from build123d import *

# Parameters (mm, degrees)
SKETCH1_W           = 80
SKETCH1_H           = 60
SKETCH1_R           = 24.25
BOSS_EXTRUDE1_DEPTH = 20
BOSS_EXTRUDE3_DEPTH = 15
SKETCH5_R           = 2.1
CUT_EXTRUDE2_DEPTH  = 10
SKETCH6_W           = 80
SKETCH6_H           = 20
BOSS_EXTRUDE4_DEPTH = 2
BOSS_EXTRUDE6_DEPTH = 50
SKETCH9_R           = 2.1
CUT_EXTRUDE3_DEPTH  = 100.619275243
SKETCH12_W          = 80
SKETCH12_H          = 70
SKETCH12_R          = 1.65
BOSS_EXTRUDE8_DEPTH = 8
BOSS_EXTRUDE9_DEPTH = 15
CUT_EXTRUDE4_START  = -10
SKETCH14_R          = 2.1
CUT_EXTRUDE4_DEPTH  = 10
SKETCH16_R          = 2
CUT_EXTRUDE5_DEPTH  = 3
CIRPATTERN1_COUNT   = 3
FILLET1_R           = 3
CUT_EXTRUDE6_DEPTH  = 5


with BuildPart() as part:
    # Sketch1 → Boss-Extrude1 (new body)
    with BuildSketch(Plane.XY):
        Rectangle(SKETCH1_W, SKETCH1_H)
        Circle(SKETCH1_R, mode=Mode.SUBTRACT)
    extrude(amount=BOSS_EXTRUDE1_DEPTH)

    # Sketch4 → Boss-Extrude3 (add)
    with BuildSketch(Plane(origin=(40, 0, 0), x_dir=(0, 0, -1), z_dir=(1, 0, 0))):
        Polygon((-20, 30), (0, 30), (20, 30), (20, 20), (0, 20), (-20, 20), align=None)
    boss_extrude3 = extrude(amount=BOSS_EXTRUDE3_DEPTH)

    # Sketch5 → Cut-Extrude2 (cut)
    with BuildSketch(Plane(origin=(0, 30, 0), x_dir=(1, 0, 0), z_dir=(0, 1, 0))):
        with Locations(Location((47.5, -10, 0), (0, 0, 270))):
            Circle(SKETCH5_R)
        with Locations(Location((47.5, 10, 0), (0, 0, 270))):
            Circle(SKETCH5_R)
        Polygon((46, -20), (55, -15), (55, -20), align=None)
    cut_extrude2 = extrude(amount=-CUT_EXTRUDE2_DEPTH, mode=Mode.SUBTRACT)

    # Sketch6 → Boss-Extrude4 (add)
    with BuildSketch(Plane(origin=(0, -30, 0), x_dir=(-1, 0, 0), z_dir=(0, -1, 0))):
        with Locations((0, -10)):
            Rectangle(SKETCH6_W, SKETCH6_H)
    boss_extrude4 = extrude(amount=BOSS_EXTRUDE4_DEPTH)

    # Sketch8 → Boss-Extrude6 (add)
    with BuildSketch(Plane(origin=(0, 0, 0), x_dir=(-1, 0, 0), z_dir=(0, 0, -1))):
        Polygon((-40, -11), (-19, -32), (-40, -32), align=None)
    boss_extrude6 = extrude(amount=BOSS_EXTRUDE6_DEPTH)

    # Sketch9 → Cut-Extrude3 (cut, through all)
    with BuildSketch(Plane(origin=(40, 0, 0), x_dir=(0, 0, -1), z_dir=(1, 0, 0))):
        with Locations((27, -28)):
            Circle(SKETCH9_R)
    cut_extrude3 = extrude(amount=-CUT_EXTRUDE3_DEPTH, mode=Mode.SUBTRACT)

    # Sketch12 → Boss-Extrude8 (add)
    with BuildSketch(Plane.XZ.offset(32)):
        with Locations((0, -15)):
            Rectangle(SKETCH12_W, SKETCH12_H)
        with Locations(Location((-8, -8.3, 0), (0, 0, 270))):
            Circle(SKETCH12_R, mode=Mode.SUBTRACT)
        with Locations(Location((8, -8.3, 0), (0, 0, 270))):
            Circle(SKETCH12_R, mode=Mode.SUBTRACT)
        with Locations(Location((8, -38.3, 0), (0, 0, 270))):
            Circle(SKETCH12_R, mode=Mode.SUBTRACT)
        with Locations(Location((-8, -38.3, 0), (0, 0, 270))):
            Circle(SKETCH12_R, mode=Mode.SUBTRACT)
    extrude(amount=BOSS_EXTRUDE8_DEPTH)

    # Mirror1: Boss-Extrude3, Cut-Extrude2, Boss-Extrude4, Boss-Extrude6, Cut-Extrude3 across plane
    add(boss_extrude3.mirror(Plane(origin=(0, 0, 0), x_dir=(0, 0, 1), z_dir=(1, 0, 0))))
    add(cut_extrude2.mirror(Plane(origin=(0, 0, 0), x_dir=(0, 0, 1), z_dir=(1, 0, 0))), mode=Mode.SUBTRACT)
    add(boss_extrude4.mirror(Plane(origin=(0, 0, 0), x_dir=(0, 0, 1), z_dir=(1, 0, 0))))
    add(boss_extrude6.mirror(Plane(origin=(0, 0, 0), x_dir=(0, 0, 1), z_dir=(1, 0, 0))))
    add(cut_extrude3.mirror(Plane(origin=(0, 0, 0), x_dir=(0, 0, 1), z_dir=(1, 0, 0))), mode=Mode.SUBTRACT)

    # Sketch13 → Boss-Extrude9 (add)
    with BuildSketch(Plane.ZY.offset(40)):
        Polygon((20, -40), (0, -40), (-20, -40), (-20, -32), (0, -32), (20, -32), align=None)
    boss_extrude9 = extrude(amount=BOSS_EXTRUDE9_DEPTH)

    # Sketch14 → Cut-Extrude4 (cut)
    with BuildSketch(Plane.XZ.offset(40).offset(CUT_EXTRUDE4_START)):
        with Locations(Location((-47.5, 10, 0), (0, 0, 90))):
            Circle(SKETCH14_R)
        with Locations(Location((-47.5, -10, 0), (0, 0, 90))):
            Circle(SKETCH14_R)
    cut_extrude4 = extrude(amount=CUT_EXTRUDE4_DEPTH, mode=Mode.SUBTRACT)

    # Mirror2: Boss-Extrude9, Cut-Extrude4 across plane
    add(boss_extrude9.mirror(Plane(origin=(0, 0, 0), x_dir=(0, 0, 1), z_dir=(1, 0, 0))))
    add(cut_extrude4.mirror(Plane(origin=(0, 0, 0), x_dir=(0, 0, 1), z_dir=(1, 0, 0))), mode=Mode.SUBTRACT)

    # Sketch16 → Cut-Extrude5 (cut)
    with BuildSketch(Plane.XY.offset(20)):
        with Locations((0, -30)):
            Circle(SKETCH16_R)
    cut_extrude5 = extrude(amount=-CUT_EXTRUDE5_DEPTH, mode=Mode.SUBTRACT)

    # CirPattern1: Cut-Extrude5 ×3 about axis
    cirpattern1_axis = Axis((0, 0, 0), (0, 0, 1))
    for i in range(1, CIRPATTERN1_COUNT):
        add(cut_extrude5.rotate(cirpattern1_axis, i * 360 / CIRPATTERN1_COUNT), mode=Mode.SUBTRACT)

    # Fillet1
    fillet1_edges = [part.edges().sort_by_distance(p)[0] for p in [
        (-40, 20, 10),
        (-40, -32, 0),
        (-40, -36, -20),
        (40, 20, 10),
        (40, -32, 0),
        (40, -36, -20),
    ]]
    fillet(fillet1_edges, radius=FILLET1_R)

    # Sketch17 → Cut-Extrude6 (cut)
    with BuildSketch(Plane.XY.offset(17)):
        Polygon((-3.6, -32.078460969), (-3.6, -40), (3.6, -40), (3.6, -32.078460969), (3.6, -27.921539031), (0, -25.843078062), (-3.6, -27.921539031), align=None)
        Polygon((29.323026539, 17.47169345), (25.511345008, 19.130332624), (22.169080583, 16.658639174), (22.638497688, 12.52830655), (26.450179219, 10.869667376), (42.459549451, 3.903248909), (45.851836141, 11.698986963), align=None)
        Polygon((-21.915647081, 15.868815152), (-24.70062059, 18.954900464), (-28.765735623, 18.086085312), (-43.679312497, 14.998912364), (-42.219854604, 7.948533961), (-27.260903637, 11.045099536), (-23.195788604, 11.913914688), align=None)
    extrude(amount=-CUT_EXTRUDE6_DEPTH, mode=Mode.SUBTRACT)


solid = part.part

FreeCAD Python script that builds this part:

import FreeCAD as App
import Part
import Sketcher

V = App.Vector


def edges_at(feature, points):
    """Names of the edges that pass closest to the given points."""
    edges = feature.Shape.Edges
    near = lambda p: min(range(len(edges)), key=lambda i: edges[i].distToShape(Part.Vertex(*p))[0])
    return sorted({f"Edge{near(p) + 1}" for p in points})

doc = App.newDocument("Part")
body = doc.addObject("PartDesign::Body", "Body")

# Sketch on XY plane
sketch1 = doc.addObject("Sketcher::SketchObject", "Sketch")
body.addObject(sketch1)
sketch1.AttachmentSupport = (doc.XY_Plane, [""])
sketch1.MapMode = "FlatFace"
sketch1.addGeometry(Part.LineSegment(V(-40, 30, 0), V(-40, -30, 0)), False)
sketch1.addGeometry(Part.LineSegment(V(-40, -30, 0), V(40, -30, 0)), False)
sketch1.addGeometry(Part.LineSegment(V(40, -30, 0), V(40, 30, 0)), False)
sketch1.addGeometry(Part.LineSegment(V(40, 30, 0), V(-40, 30, 0)), False)
sketch1.addGeometry(Part.Circle(V(0, 0, 0), V(0, 0, 1), 24.25), False)
sketch1.addConstraint(Sketcher.Constraint("Coincident", 0, 2, 1, 1))
sketch1.addConstraint(Sketcher.Constraint("Coincident", 1, 2, 2, 1))
sketch1.addConstraint(Sketcher.Constraint("Coincident", 2, 2, 3, 1))
sketch1.addConstraint(Sketcher.Constraint("Coincident", 3, 2, 0, 1))
sketch1.addConstraint(Sketcher.Constraint("Vertical", 0))
sketch1.addConstraint(Sketcher.Constraint("Horizontal", 1))
sketch1.addConstraint(Sketcher.Constraint("Vertical", 2))
sketch1.addConstraint(Sketcher.Constraint("Horizontal", 3))
sketch1.addConstraint(Sketcher.Constraint("Coincident", 4, 3, -1, 1))
sketch1.addConstraint(Sketcher.Constraint("Symmetric", 0, 2, 2, 2, -1, 1))
sketch1.addConstraint(Sketcher.Constraint("Diameter", 4, 48.5))
sketch1.addConstraint(Sketcher.Constraint("DistanceX", 1, 1, 1, 2, 80.0))
sketch1.addConstraint(Sketcher.Constraint("DistanceY", 0, 2, 0, 1, 60.0))
pad1 = doc.addObject("PartDesign::Pad", "Pad")
body.addObject(pad1)
pad1.Profile = sketch1
pad1.Length = 20

# Sketch on YZ plane
sketch2 = doc.addObject("Sketcher::SketchObject", "Sketch001")
body.addObject(sketch2)
sketch2.AttachmentSupport = (doc.YZ_Plane, [""])
sketch2.MapMode = "FlatFace"
sketch2.AttachmentOffset = App.Placement(V(0, 0, 40), App.Rotation())
sketch2.addGeometry(Part.LineSegment(V(30, -20, 0), V(30, 20, 0)), False)
sketch2.addGeometry(Part.LineSegment(V(30, 20, 0), V(20, 20, 0)), False)
sketch2.addGeometry(Part.LineSegment(V(20, 20, 0), V(20, -20, 0)), False)
sketch2.addGeometry(Part.LineSegment(V(20, -20, 0), V(30, -20, 0)), False)
sketch2.addConstraint(Sketcher.Constraint("Coincident", 0, 2, 1, 1))
sketch2.addConstraint(Sketcher.Constraint("Coincident", 1, 2, 2, 1))
sketch2.addConstraint(Sketcher.Constraint("Coincident", 2, 2, 3, 1))
sketch2.addConstraint(Sketcher.Constraint("Coincident", 3, 2, 0, 1))
sketch2.addConstraint(Sketcher.Constraint("Vertical", 0))
sketch2.addConstraint(Sketcher.Constraint("Horizontal", 1))
sketch2.addConstraint(Sketcher.Constraint("Vertical", 2))
sketch2.addConstraint(Sketcher.Constraint("Horizontal", 3))
sketch2.addConstraint(Sketcher.Constraint("DistanceX", 1, 2, 1, 1, 10.0))
sketch2.addConstraint(Sketcher.Constraint("DistanceY", 0, 1, 0, 2, 40.0))
sketch2.addConstraint(Sketcher.Constraint("DistanceX", -1, 1, 0, 2, 30.0))
sketch2.addConstraint(Sketcher.Constraint("DistanceY", -1, 1, 0, 2, 20.0))
pad2 = doc.addObject("PartDesign::Pad", "Pad001")
body.addObject(pad2)
pad2.Profile = sketch2
pad2.Length = 15

# Sketch on XZ plane
sketch3 = doc.addObject("Sketcher::SketchObject", "Sketch002")
body.addObject(sketch3)
sketch3.AttachmentSupport = (doc.XZ_Plane, [""])
sketch3.MapMode = "FlatFace"
sketch3.AttachmentOffset = App.Placement(V(0, 0, -30), App.Rotation())
sketch3.addGeometry(Part.Circle(V(47.5, 10, 0), V(0, 0, 1), 2.1), False)
sketch3.addGeometry(Part.Circle(V(47.5, -10, 0), V(0, 0, 1), 2.1), False)
sketch3.addGeometry(Part.LineSegment(V(55, 15, 0), V(46, 20, 0)), False)
sketch3.addGeometry(Part.LineSegment(V(46, 20, 0), V(55, 20, 0)), False)
sketch3.addGeometry(Part.LineSegment(V(55, 20, 0), V(55, 15, 0)), False)
sketch3.addConstraint(Sketcher.Constraint("Coincident", 2, 2, 3, 1))
sketch3.addConstraint(Sketcher.Constraint("Coincident", 3, 2, 4, 1))
sketch3.addConstraint(Sketcher.Constraint("Coincident", 4, 2, 2, 1))
sketch3.addConstraint(Sketcher.Constraint("Horizontal", 3))
sketch3.addConstraint(Sketcher.Constraint("Vertical", 4))
sketch3.addConstraint(Sketcher.Constraint("Equal", 0, 1))
sketch3.addConstraint(Sketcher.Constraint("Symmetric", 0, 3, 1, 3, -1))
sketch3.addConstraint(Sketcher.Constraint("Diameter", 0, 4.2))
sketch3.addConstraint(Sketcher.Constraint("DistanceX", 3, 1, 3, 2, 9.0))
sketch3.addConstraint(Sketcher.Constraint("DistanceY", 4, 2, 4, 1, 5.0))
sketch3.addConstraint(Sketcher.Constraint("DistanceY", -1, 1, 0, 3, 10.0))
sketch3.addConstraint(Sketcher.Constraint("DistanceX", -1, 1, 2, 2, 46.0))
sketch3.addConstraint(Sketcher.Constraint("DistanceY", -1, 1, 2, 2, 20.0))
sketch3.addConstraint(Sketcher.Constraint("DistanceX", -1, 1, 0, 3, 47.5))
pocket1 = doc.addObject("PartDesign::Pocket", "Pocket")
body.addObject(pocket1)
pocket1.Profile = sketch3
pocket1.Length = 10
pocket1.Reversed = True

# Sketch on XZ plane
sketch4 = doc.addObject("Sketcher::SketchObject", "Sketch003")
body.addObject(sketch4)
sketch4.AttachmentSupport = (doc.XZ_Plane, [""])
sketch4.MapMode = "FlatFace"
sketch4.AttachmentOffset = App.Placement(V(0, 0, 30), App.Rotation())
sketch4.addGeometry(Part.LineSegment(V(40, 0, 0), V(40, 20, 0)), False)
sketch4.addGeometry(Part.LineSegment(V(40, 20, 0), V(-40, 20, 0)), False)
sketch4.addGeometry(Part.LineSegment(V(-40, 20, 0), V(-40, 0, 0)), False)
sketch4.addGeometry(Part.LineSegment(V(-40, 0, 0), V(40, 0, 0)), False)
sketch4.addConstraint(Sketcher.Constraint("Coincident", 0, 2, 1, 1))
sketch4.addConstraint(Sketcher.Constraint("Coincident", 1, 2, 2, 1))
sketch4.addConstraint(Sketcher.Constraint("Coincident", 2, 2, 3, 1))
sketch4.addConstraint(Sketcher.Constraint("Coincident", 3, 2, 0, 1))
sketch4.addConstraint(Sketcher.Constraint("Vertical", 0))
sketch4.addConstraint(Sketcher.Constraint("Horizontal", 1))
sketch4.addConstraint(Sketcher.Constraint("Vertical", 2))
sketch4.addConstraint(Sketcher.Constraint("Horizontal", 3))
sketch4.addConstraint(Sketcher.Constraint("Symmetric", 2, 2, 3, 2, -1, 1))
sketch4.addConstraint(Sketcher.Constraint("DistanceX", 1, 2, 1, 1, 80.0))
sketch4.addConstraint(Sketcher.Constraint("DistanceY", 0, 1, 0, 2, 20.0))
pad3 = doc.addObject("PartDesign::Pad", "Pad002")
body.addObject(pad3)
pad3.Profile = sketch4
pad3.Length = 2

# Sketch on XY plane
sketch5 = doc.addObject("Sketcher::SketchObject", "Sketch004")
body.addObject(sketch5)
sketch5.AttachmentSupport = (doc.XY_Plane, [""])
sketch5.MapMode = "FlatFace"
sketch5.addGeometry(Part.LineSegment(V(19, -32, 0), V(40, -11, 0)), False)
sketch5.addGeometry(Part.LineSegment(V(40, -11, 0), V(40, -32, 0)), False)
sketch5.addGeometry(Part.LineSegment(V(40, -32, 0), V(19, -32, 0)), False)
sketch5.addConstraint(Sketcher.Constraint("Coincident", 0, 2, 1, 1))
sketch5.addConstraint(Sketcher.Constraint("Coincident", 1, 2, 2, 1))
sketch5.addConstraint(Sketcher.Constraint("Coincident", 2, 2, 0, 1))
sketch5.addConstraint(Sketcher.Constraint("Vertical", 1))
sketch5.addConstraint(Sketcher.Constraint("Horizontal", 2))
sketch5.addConstraint(Sketcher.Constraint("Equal", 2, 1))
sketch5.addConstraint(Sketcher.Constraint("DistanceX", 2, 2, 2, 1, 21.0))
sketch5.addConstraint(Sketcher.Constraint("DistanceX", -1, 1, 0, 2, 40.0))
sketch5.addConstraint(Sketcher.Constraint("DistanceY", 0, 2, -1, 1, 11.0))
pad4 = doc.addObject("PartDesign::Pad", "Pad003")
body.addObject(pad4)
pad4.Profile = sketch5
pad4.Length = 50
pad4.Reversed = True

# Sketch on YZ plane
sketch6 = doc.addObject("Sketcher::SketchObject", "Sketch005")
body.addObject(sketch6)
sketch6.AttachmentSupport = (doc.YZ_Plane, [""])
sketch6.MapMode = "FlatFace"
sketch6.AttachmentOffset = App.Placement(V(0, 0, 40), App.Rotation())
sketch6.addGeometry(Part.Circle(V(-28, -27, 0), V(0, 0, 1), 2.1), False)
sketch6.addConstraint(Sketcher.Constraint("Diameter", 0, 4.2))
sketch6.addConstraint(Sketcher.Constraint("DistanceX", 0, 3, -1, 1, 28.0))
sketch6.addConstraint(Sketcher.Constraint("DistanceY", 0, 3, -1, 1, 27.0))
pocket2 = doc.addObject("PartDesign::Pocket", "Pocket001")
body.addObject(pocket2)
pocket2.Profile = sketch6
pocket2.Type = "ThroughAll"

# Sketch on XZ plane
sketch7 = doc.addObject("Sketcher::SketchObject", "Sketch006")
body.addObject(sketch7)
sketch7.AttachmentSupport = (doc.XZ_Plane, [""])
sketch7.MapMode = "FlatFace"
sketch7.AttachmentOffset = App.Placement(V(0, 0, 32), App.Rotation())
sketch7.addGeometry(Part.LineSegment(V(-40, 20, 0), V(-40, -50, 0)), False)
sketch7.addGeometry(Part.LineSegment(V(-40, -50, 0), V(40, -50, 0)), False)
sketch7.addGeometry(Part.LineSegment(V(40, -50, 0), V(40, 20, 0)), False)
sketch7.addGeometry(Part.LineSegment(V(40, 20, 0), V(-40, 20, 0)), False)
sketch7.addGeometry(Part.Circle(V(-8, -38.3, 0), V(0, 0, 1), 1.65), False)
sketch7.addGeometry(Part.Circle(V(8, -38.3, 0), V(0, 0, 1), 1.65), False)
sketch7.addGeometry(Part.Circle(V(-8, -8.3, 0), V(0, 0, 1), 1.65), False)
sketch7.addGeometry(Part.Circle(V(8, -8.3, 0), V(0, 0, 1), 1.65), False)
sketch7.addConstraint(Sketcher.Constraint("Coincident", 0, 2, 1, 1))
sketch7.addConstraint(Sketcher.Constraint("Coincident", 1, 2, 2, 1))
sketch7.addConstraint(Sketcher.Constraint("Coincident", 2, 2, 3, 1))
sketch7.addConstraint(Sketcher.Constraint("Coincident", 3, 2, 0, 1))
sketch7.addConstraint(Sketcher.Constraint("Vertical", 0))
sketch7.addConstraint(Sketcher.Constraint("Horizontal", 1))
sketch7.addConstraint(Sketcher.Constraint("Vertical", 2))
sketch7.addConstraint(Sketcher.Constraint("Horizontal", 3))
sketch7.addConstraint(Sketcher.Constraint("Equal", 4, 5))
sketch7.addConstraint(Sketcher.Constraint("Equal", 5, 6))
sketch7.addConstraint(Sketcher.Constraint("Equal", 6, 7))
sketch7.addConstraint(Sketcher.Constraint("Symmetric", 4, 3, 5, 3, -2))
sketch7.addConstraint(Sketcher.Constraint("Symmetric", 6, 3, 7, 3, -2))
sketch7.addConstraint(Sketcher.Constraint("Vertical", 4, 3, 6, 3))
sketch7.addConstraint(Sketcher.Constraint("Diameter", 4, 3.3))
sketch7.addConstraint(Sketcher.Constraint("DistanceX", 1, 1, 1, 2, 80.0))
sketch7.addConstraint(Sketcher.Constraint("DistanceY", 0, 2, 0, 1, 70.0))
sketch7.addConstraint(Sketcher.Constraint("DistanceX", 4, 3, -1, 1, 8.0))
sketch7.addConstraint(Sketcher.Constraint("DistanceX", 0, 2, -1, 1, 40.0))
sketch7.addConstraint(Sketcher.Constraint("DistanceY", 0, 2, -1, 1, 50.0))
sketch7.addConstraint(Sketcher.Constraint("DistanceY", 4, 3, 6, 3, 30.0))
sketch7.addConstraint(Sketcher.Constraint("DistanceY", 4, 3, -1, 1, 38.3))
pad5 = doc.addObject("PartDesign::Pad", "Pad004")
body.addObject(pad5)
pad5.Profile = sketch7
pad5.Length = 8
doc.recompute()

mirrored = doc.addObject("PartDesign::Mirrored", "Mirrored")
body.addObject(mirrored)
mirrored.Originals = [pad2, pocket1, pad3, pad4, pocket2]
mirrored.MirrorPlane = (doc.YZ_Plane, [""])
body.Tip = mirrored

# Sketch on YZ plane
sketch8 = doc.addObject("Sketcher::SketchObject", "Sketch007")
body.addObject(sketch8)
sketch8.AttachmentSupport = (doc.YZ_Plane, [""])
sketch8.MapMode = "FlatFace"
sketch8.AttachmentOffset = App.Placement(V(0, 0, -40), App.Rotation())
sketch8.addGeometry(Part.LineSegment(V(-40, -20, 0), V(-40, 20, 0)), False)
sketch8.addGeometry(Part.LineSegment(V(-40, 20, 0), V(-32, 20, 0)), False)
sketch8.addGeometry(Part.LineSegment(V(-32, 20, 0), V(-32, -20, 0)), False)
sketch8.addGeometry(Part.LineSegment(V(-32, -20, 0), V(-40, -20, 0)), False)
sketch8.addConstraint(Sketcher.Constraint("Coincident", 0, 2, 1, 1))
sketch8.addConstraint(Sketcher.Constraint("Coincident", 1, 2, 2, 1))
sketch8.addConstraint(Sketcher.Constraint("Coincident", 2, 2, 3, 1))
sketch8.addConstraint(Sketcher.Constraint("Coincident", 3, 2, 0, 1))
sketch8.addConstraint(Sketcher.Constraint("Vertical", 0))
sketch8.addConstraint(Sketcher.Constraint("Horizontal", 1))
sketch8.addConstraint(Sketcher.Constraint("Vertical", 2))
sketch8.addConstraint(Sketcher.Constraint("Horizontal", 3))
sketch8.addConstraint(Sketcher.Constraint("DistanceX", 1, 1, 1, 2, 8.0))
sketch8.addConstraint(Sketcher.Constraint("DistanceY", 0, 1, 0, 2, 40.0))
sketch8.addConstraint(Sketcher.Constraint("DistanceX", 0, 2, -1, 1, 40.0))
sketch8.addConstraint(Sketcher.Constraint("DistanceY", -1, 1, 0, 2, 20.0))
pad6 = doc.addObject("PartDesign::Pad", "Pad005")
body.addObject(pad6)
pad6.Profile = sketch8
pad6.Length = 15
pad6.Reversed = True

# Sketch on XZ plane
sketch9 = doc.addObject("Sketcher::SketchObject", "Sketch008")
body.addObject(sketch9)
sketch9.AttachmentSupport = (doc.XZ_Plane, [""])
sketch9.MapMode = "FlatFace"
sketch9.AttachmentOffset = App.Placement(V(0, 0, 30), App.Rotation())
sketch9.addGeometry(Part.Circle(V(-47.5, 10, 0), V(0, 0, 1), 2.1), False)
sketch9.addGeometry(Part.Circle(V(-47.5, -10, 0), V(0, 0, 1), 2.1), False)
sketch9.addConstraint(Sketcher.Constraint("Equal", 0, 1))
sketch9.addConstraint(Sketcher.Constraint("Symmetric", 0, 3, 1, 3, -1))
sketch9.addConstraint(Sketcher.Constraint("Diameter", 0, 4.2))
sketch9.addConstraint(Sketcher.Constraint("DistanceY", -1, 1, 0, 3, 10.0))
sketch9.addConstraint(Sketcher.Constraint("DistanceX", 0, 3, -1, 1, 47.5))
pocket3 = doc.addObject("PartDesign::Pocket", "Pocket002")
body.addObject(pocket3)
pocket3.Profile = sketch9
pocket3.Length = 10
pocket3.Reversed = True
doc.recompute()

mirrored2 = doc.addObject("PartDesign::Mirrored", "Mirrored001")
body.addObject(mirrored2)
mirrored2.Originals = [pad6, pocket3]
mirrored2.MirrorPlane = (doc.YZ_Plane, [""])
body.Tip = mirrored2

# Sketch on XY plane
sketch10 = doc.addObject("Sketcher::SketchObject", "Sketch009")
body.addObject(sketch10)
sketch10.AttachmentSupport = (doc.XY_Plane, [""])
sketch10.MapMode = "FlatFace"
sketch10.AttachmentOffset = App.Placement(V(0, 0, 20), App.Rotation())
sketch10.addGeometry(Part.Circle(V(0, -30, 0), V(0, 0, 1), 2), False)
sketch10.addConstraint(Sketcher.Constraint("PointOnObject", 0, 3, -2))
sketch10.addConstraint(Sketcher.Constraint("Diameter", 0, 4.0))
sketch10.addConstraint(Sketcher.Constraint("DistanceY", 0, 3, -1, 1, 30.0))
pocket4 = doc.addObject("PartDesign::Pocket", "Pocket003")
body.addObject(pocket4)
pocket4.Profile = sketch10
pocket4.Length = 3
doc.recompute()

polarpattern = doc.addObject("PartDesign::PolarPattern", "PolarPattern")
body.addObject(polarpattern)
polarpattern.Originals = [pocket4]
polarpattern.Axis = (doc.Z_Axis, [""])
polarpattern.Angle = 360
polarpattern.Occurrences = 3
body.Tip = polarpattern
doc.recompute()

fillet = doc.addObject("PartDesign::Fillet", "Fillet")
body.addObject(fillet)
fillet.Base = (polarpattern, edges_at(polarpattern, [
    (-40, 20, 10),
    (-40, -32, 0),
    (-40, -36, -20),
    (40, 20, 10),
    (40, -32, 0),
    (40, -36, -20),
]))
fillet.Radius = 3

# Sketch on XY plane
sketch11 = doc.addObject("Sketcher::SketchObject", "Sketch010")
body.addObject(sketch11)
sketch11.AttachmentSupport = (doc.XY_Plane, [""])
sketch11.MapMode = "FlatFace"
sketch11.AttachmentOffset = App.Placement(V(0, 0, 17), App.Rotation())
sketch11.addGeometry(Part.LineSegment(V(-3.6, -40, 0), V(3.6, -40, 0)), False)
sketch11.addGeometry(Part.LineSegment(V(3.6, -40, 0), V(3.6, -27.921539, 0)), False)
sketch11.addGeometry(Part.LineSegment(V(3.6, -27.921539, 0), V(0, -25.843078, 0)), False)
sketch11.addGeometry(Part.LineSegment(V(0, -25.843078, 0), V(-3.6, -27.921539, 0)), False)
sketch11.addGeometry(Part.LineSegment(V(-3.6, -27.921539, 0), V(-3.6, -40, 0)), False)
sketch11.addGeometry(Part.LineSegment(V(29.323027, 17.471693, 0), V(25.511345, 19.130333, 0)), False)
sketch11.addGeometry(Part.LineSegment(V(25.511345, 19.130333, 0), V(22.169081, 16.658639, 0)), False)
sketch11.addGeometry(Part.LineSegment(V(22.169081, 16.658639, 0), V(22.638498, 12.528307, 0)), False)
sketch11.addGeometry(Part.LineSegment(V(22.638498, 12.528307, 0), V(26.450179, 10.869667, 0)), False)
sketch11.addGeometry(Part.LineSegment(V(26.450179, 10.869667, 0), V(42.459549, 3.903249, 0)), False)
sketch11.addGeometry(Part.LineSegment(V(42.459549, 3.903249, 0), V(45.851836, 11.698987, 0)), False)
sketch11.addGeometry(Part.LineSegment(V(45.851836, 11.698987, 0), V(29.323027, 17.471693, 0)), False)
sketch11.addGeometry(Part.LineSegment(V(-21.915647, 15.868815, 0), V(-24.700621, 18.9549, 0)), False)
sketch11.addGeometry(Part.LineSegment(V(-24.700621, 18.9549, 0), V(-28.765736, 18.086085, 0)), False)
sketch11.addGeometry(Part.LineSegment(V(-28.765736, 18.086085, 0), V(-43.679312, 14.998912, 0)), False)
sketch11.addGeometry(Part.LineSegment(V(-43.679312, 14.998912, 0), V(-42.219855, 7.948534, 0)), False)
sketch11.addGeometry(Part.LineSegment(V(-42.219855, 7.948534, 0), V(-27.260904, 11.0451, 0)), False)
sketch11.addGeometry(Part.LineSegment(V(-27.260904, 11.0451, 0), V(-23.195789, 11.913915, 0)), False)
sketch11.addGeometry(Part.LineSegment(V(-23.195789, 11.913915, 0), V(-21.915647, 15.868815, 0)), False)
sketch11.addConstraint(Sketcher.Constraint("Coincident", 0, 2, 1, 1))
sketch11.addConstraint(Sketcher.Constraint("Coincident", 1, 2, 2, 1))
sketch11.addConstraint(Sketcher.Constraint("Coincident", 2, 2, 3, 1))
sketch11.addConstraint(Sketcher.Constraint("Coincident", 3, 2, 4, 1))
sketch11.addConstraint(Sketcher.Constraint("Coincident", 4, 2, 0, 1))
sketch11.addConstraint(Sketcher.Constraint("Coincident", 5, 2, 6, 1))
sketch11.addConstraint(Sketcher.Constraint("Coincident", 6, 2, 7, 1))
sketch11.addConstraint(Sketcher.Constraint("Coincident", 7, 2, 8, 1))
sketch11.addConstraint(Sketcher.Constraint("Coincident", 8, 2, 9, 1))
sketch11.addConstraint(Sketcher.Constraint("Coincident", 9, 2, 10, 1))
sketch11.addConstraint(Sketcher.Constraint("Coincident", 10, 2, 11, 1))
sketch11.addConstraint(Sketcher.Constraint("Coincident", 11, 2, 5, 1))
sketch11.addConstraint(Sketcher.Constraint("Coincident", 12, 2, 13, 1))
sketch11.addConstraint(Sketcher.Constraint("Coincident", 13, 2, 14, 1))
sketch11.addConstraint(Sketcher.Constraint("Coincident", 14, 2, 15, 1))
sketch11.addConstraint(Sketcher.Constraint("Coincident", 15, 2, 16, 1))
sketch11.addConstraint(Sketcher.Constraint("Coincident", 16, 2, 17, 1))
sketch11.addConstraint(Sketcher.Constraint("Coincident", 17, 2, 18, 1))
sketch11.addConstraint(Sketcher.Constraint("Coincident", 18, 2, 12, 1))
sketch11.addConstraint(Sketcher.Constraint("Horizontal", 0))
sketch11.addConstraint(Sketcher.Constraint("Vertical", 1))
sketch11.addConstraint(Sketcher.Constraint("Vertical", 4))
sketch11.addConstraint(Sketcher.Constraint("PointOnObject", 2, 2, -2))
sketch11.addConstraint(Sketcher.Constraint("DistanceX", 0, 1, 0, 2, 7.2))
sketch11.addConstraint(Sketcher.Constraint("DistanceY", 0, 2, -1, 1, 40.0))
sketch11.addConstraint(Sketcher.Constraint("DistanceX", -1, 1, 0, 2, 3.6))
sketch11.addConstraint(Sketcher.Constraint("DistanceY", 1, 1, 1, 2, 12.078461))
sketch11.addConstraint(Sketcher.Constraint("DistanceY", 4, 2, 4, 1, 12.078461))
sketch11.addConstraint(Sketcher.Constraint("DistanceY", -1, 1, 12, 2, 18.9549))
sketch11.addConstraint(Sketcher.Constraint("DistanceY", -1, 1, 16, 2, 11.0451))
sketch11.addConstraint(Sketcher.Constraint("DistanceX", 6, 2, 8, 2, 4.281099))
sketch11.addConstraint(Sketcher.Constraint("DistanceX", 12, 2, 6, 2, 46.869701))
sketch11.addConstraint(Sketcher.Constraint("DistanceY", 17, 2, 18, 2, 3.9549))
sketch11.addConstraint(Sketcher.Constraint("Distance", 2, 4.156922))
sketch11.addConstraint(Sketcher.Constraint("Distance", 5, 4.156922))
sketch11.addConstraint(Sketcher.Constraint("Distance", 6, 4.156922))
sketch11.addConstraint(Sketcher.Constraint("Distance", 7, 4.156922))
sketch11.addConstraint(Sketcher.Constraint("Distance", 8, 4.156922))
sketch11.addConstraint(Sketcher.Constraint("Distance", 10, 8.501832))
sketch11.addConstraint(Sketcher.Constraint("Distance", 12, 4.156922))
sketch11.addConstraint(Sketcher.Constraint("Distance", 13, 4.156922))
sketch11.addConstraint(Sketcher.Constraint("Distance", 15, 7.199851))
sketch11.addConstraint(Sketcher.Constraint("Distance", 16, 15.27609))
sketch11.addConstraint(Sketcher.Constraint("Distance", 17, 4.156922))
sketch11.addConstraint(Sketcher.Constraint("Distance", 18, 4.156922))
sketch11.addConstraint(Sketcher.Constraint("DistanceX", -1, 1, 6, 2, 22.169081))
sketch11.addConstraint(Sketcher.Constraint("DistanceY", -1, 1, 6, 2, 16.658639))
sketch11.addConstraint(Sketcher.Constraint("DistanceX", -1, 1, 9, 2, 42.459549))
sketch11.addConstraint(Sketcher.Constraint("DistanceY", -1, 1, 9, 2, 3.903249))
sketch11.addConstraint(Sketcher.Constraint("DistanceX", 17, 2, -1, 1, 23.195789))
sketch11.addConstraint(Sketcher.Constraint("DistanceY", 2, 2, 5, 2, 44.973411))
sketch11.addConstraint(Sketcher.Constraint("DistanceX", 7, 2, 8, 2, 3.811682))
sketch11.addConstraint(Sketcher.Constraint("DistanceY", 9, 2, 10, 2, 7.795738))
sketch11.addConstraint(Sketcher.Constraint("DistanceX", 5, 2, 11, 2, 3.811682))
sketch11.addConstraint(Sketcher.Constraint("DistanceY", 7, 2, 13, 2, 5.557779))
sketch11.addConstraint(Sketcher.Constraint("DistanceX", 14, 2, 12, 2, 18.978692))
sketch11.addConstraint(Sketcher.Constraint("DistanceY", 14, 2, 12, 2, 3.955988))
pocket5 = doc.addObject("PartDesign::Pocket", "Pocket004")
body.addObject(pocket5)
pocket5.Profile = sketch11
pocket5.Length = 5

doc.recompute()
